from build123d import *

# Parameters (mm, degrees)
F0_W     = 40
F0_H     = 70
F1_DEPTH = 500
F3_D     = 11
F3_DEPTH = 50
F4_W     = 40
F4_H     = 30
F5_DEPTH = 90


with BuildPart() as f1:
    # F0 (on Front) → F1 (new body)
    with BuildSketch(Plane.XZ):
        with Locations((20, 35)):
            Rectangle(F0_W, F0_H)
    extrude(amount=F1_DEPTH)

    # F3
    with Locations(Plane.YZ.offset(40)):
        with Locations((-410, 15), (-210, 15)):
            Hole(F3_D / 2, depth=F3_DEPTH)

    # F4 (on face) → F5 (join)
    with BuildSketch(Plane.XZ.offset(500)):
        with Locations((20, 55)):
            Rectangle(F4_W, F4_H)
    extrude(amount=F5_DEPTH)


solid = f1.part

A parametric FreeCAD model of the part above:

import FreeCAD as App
import Part
import Sketcher
Q = App.Units.Quantity


def add_polygon(sketch, points):
    """Adds a closed chain of lines whose ends are joined by coincident constraints."""
    first, n = sketch.GeometryCount, len(points)
    for a, b in zip(points, points[1:] + points[:1]):
        sketch.addGeometry(Part.LineSegment(App.Vector(*a, 0), App.Vector(*b, 0)), False)
    for i in range(n):
        sketch.addConstraint(Sketcher.Constraint("Coincident", first + i, 2, first + (i + 1) % n, 1))

doc = App.newDocument("Part")
body = doc.addObject("PartDesign::Body", "Body")

# Sketch on XZ plane
sketch1 = body.newObject("Sketcher::SketchObject", "Sketch")
sketch1.AttachmentSupport = (doc.getObject("XZ_Plane"), [""])
sketch1.MapMode = "FlatFace"
add_polygon(sketch1, [(0, 70), (0, 0), (40, 0), (40, 70)])  # lines 0-3
sketch1.addConstraint(Sketcher.Constraint("Vertical", 0))
sketch1.addConstraint(Sketcher.Constraint("Horizontal", 1))
sketch1.addConstraint(Sketcher.Constraint("Vertical", 2))
sketch1.addConstraint(Sketcher.Constraint("Horizontal", 3))
sketch1.addConstraint(Sketcher.Constraint("Coincident", 0, 2, -1, 1))
sketch1.addConstraint(Sketcher.Constraint("DistanceX", 1, 1, 1, 2, Q("40 mm")))
sketch1.addConstraint(Sketcher.Constraint("DistanceY", 0, 2, 0, 1, Q("70 mm")))
pad1 = body.newObject("PartDesign::Pad", "Pad")
pad1.Profile = sketch1
pad1.Length = 500

# Sketch on YZ plane
sketch2 = body.newObject("Sketcher::SketchObject", "Sketch001")
sketch2.AttachmentSupport = (doc.getObject("YZ_Plane"), [""])
sketch2.MapMode = "FlatFace"
sketch2.AttachmentOffset = App.Placement(App.Vector(0, 0, 40), App.Rotation())
sketch2.addGeometry(Part.Circle(App.Vector(-410, 15, 0), App.Vector(0, 0, 1), 6), False)
sketch2.addGeometry(Part.Circle(App.Vector(-210, 15, 0), App.Vector(0, 0, 1), 6), False)
sketch2.addConstraint(Sketcher.Constraint("Equal", 0, 1))
sketch2.addConstraint(Sketcher.Constraint("Horizontal", 0, 3, 1, 3))
sketch2.addConstraint(Sketcher.Constraint("Diameter", 0, Q("11 mm")))
sketch2.addConstraint(Sketcher.Constraint("DistanceX", 0, 3, -1, 1, Q("410 mm")))
sketch2.addConstraint(Sketcher.Constraint("DistanceY", -1, 1, 0, 3, Q("15 mm")))
sketch2.addConstraint(Sketcher.Constraint("DistanceX", 1, 3, -1, 1, Q("210 mm")))
doc.recompute()
hole = body.newObject("PartDesign::Hole", "Hole")
hole.Profile = sketch2
hole.ThreadType = "None"
hole.Diameter = 11
hole.DepthType = "Dimension"
hole.Depth = 50
hole.DrillPoint = "Flat"

# Sketch on XZ plane
sketch3 = body.newObject("Sketcher::SketchObject", "Sketch002")
sketch3.AttachmentSupport = (doc.getObject("XZ_Plane"), [""])
sketch3.MapMode = "FlatFace"
sketch3.AttachmentOffset = App.Placement(App.Vector(0, 0, 500), App.Rotation())
add_polygon(sketch3, [(0, 70), (0, 40), (40, 40), (40, 70)])  # lines 0-3
sketch3.addConstraint(Sketcher.Constraint("Vertical", 0))
sketch3.addConstraint(Sketcher.Constraint("Horizontal", 1))
sketch3.addConstraint(Sketcher.Constraint("Vertical", 2))
sketch3.addConstraint(Sketcher.Constraint("Horizontal", 3))
sketch3.addConstraint(Sketcher.Constraint("PointOnObject", 0, 2, -2))
sketch3.addConstraint(Sketcher.Constraint("DistanceX", 1, 1, 1, 2, Q("40 mm")))
sketch3.addConstraint(Sketcher.Constraint("DistanceY", 0, 2, 0, 1, Q("30 mm")))
sketch3.addConstraint(Sketcher.Constraint("DistanceY", -1, 1, 0, 2, Q("40 mm")))
pad2 = body.newObject("PartDesign::Pad", "Pad001")
pad2.Profile = sketch3
pad2.Length = 90

doc.recompute()
